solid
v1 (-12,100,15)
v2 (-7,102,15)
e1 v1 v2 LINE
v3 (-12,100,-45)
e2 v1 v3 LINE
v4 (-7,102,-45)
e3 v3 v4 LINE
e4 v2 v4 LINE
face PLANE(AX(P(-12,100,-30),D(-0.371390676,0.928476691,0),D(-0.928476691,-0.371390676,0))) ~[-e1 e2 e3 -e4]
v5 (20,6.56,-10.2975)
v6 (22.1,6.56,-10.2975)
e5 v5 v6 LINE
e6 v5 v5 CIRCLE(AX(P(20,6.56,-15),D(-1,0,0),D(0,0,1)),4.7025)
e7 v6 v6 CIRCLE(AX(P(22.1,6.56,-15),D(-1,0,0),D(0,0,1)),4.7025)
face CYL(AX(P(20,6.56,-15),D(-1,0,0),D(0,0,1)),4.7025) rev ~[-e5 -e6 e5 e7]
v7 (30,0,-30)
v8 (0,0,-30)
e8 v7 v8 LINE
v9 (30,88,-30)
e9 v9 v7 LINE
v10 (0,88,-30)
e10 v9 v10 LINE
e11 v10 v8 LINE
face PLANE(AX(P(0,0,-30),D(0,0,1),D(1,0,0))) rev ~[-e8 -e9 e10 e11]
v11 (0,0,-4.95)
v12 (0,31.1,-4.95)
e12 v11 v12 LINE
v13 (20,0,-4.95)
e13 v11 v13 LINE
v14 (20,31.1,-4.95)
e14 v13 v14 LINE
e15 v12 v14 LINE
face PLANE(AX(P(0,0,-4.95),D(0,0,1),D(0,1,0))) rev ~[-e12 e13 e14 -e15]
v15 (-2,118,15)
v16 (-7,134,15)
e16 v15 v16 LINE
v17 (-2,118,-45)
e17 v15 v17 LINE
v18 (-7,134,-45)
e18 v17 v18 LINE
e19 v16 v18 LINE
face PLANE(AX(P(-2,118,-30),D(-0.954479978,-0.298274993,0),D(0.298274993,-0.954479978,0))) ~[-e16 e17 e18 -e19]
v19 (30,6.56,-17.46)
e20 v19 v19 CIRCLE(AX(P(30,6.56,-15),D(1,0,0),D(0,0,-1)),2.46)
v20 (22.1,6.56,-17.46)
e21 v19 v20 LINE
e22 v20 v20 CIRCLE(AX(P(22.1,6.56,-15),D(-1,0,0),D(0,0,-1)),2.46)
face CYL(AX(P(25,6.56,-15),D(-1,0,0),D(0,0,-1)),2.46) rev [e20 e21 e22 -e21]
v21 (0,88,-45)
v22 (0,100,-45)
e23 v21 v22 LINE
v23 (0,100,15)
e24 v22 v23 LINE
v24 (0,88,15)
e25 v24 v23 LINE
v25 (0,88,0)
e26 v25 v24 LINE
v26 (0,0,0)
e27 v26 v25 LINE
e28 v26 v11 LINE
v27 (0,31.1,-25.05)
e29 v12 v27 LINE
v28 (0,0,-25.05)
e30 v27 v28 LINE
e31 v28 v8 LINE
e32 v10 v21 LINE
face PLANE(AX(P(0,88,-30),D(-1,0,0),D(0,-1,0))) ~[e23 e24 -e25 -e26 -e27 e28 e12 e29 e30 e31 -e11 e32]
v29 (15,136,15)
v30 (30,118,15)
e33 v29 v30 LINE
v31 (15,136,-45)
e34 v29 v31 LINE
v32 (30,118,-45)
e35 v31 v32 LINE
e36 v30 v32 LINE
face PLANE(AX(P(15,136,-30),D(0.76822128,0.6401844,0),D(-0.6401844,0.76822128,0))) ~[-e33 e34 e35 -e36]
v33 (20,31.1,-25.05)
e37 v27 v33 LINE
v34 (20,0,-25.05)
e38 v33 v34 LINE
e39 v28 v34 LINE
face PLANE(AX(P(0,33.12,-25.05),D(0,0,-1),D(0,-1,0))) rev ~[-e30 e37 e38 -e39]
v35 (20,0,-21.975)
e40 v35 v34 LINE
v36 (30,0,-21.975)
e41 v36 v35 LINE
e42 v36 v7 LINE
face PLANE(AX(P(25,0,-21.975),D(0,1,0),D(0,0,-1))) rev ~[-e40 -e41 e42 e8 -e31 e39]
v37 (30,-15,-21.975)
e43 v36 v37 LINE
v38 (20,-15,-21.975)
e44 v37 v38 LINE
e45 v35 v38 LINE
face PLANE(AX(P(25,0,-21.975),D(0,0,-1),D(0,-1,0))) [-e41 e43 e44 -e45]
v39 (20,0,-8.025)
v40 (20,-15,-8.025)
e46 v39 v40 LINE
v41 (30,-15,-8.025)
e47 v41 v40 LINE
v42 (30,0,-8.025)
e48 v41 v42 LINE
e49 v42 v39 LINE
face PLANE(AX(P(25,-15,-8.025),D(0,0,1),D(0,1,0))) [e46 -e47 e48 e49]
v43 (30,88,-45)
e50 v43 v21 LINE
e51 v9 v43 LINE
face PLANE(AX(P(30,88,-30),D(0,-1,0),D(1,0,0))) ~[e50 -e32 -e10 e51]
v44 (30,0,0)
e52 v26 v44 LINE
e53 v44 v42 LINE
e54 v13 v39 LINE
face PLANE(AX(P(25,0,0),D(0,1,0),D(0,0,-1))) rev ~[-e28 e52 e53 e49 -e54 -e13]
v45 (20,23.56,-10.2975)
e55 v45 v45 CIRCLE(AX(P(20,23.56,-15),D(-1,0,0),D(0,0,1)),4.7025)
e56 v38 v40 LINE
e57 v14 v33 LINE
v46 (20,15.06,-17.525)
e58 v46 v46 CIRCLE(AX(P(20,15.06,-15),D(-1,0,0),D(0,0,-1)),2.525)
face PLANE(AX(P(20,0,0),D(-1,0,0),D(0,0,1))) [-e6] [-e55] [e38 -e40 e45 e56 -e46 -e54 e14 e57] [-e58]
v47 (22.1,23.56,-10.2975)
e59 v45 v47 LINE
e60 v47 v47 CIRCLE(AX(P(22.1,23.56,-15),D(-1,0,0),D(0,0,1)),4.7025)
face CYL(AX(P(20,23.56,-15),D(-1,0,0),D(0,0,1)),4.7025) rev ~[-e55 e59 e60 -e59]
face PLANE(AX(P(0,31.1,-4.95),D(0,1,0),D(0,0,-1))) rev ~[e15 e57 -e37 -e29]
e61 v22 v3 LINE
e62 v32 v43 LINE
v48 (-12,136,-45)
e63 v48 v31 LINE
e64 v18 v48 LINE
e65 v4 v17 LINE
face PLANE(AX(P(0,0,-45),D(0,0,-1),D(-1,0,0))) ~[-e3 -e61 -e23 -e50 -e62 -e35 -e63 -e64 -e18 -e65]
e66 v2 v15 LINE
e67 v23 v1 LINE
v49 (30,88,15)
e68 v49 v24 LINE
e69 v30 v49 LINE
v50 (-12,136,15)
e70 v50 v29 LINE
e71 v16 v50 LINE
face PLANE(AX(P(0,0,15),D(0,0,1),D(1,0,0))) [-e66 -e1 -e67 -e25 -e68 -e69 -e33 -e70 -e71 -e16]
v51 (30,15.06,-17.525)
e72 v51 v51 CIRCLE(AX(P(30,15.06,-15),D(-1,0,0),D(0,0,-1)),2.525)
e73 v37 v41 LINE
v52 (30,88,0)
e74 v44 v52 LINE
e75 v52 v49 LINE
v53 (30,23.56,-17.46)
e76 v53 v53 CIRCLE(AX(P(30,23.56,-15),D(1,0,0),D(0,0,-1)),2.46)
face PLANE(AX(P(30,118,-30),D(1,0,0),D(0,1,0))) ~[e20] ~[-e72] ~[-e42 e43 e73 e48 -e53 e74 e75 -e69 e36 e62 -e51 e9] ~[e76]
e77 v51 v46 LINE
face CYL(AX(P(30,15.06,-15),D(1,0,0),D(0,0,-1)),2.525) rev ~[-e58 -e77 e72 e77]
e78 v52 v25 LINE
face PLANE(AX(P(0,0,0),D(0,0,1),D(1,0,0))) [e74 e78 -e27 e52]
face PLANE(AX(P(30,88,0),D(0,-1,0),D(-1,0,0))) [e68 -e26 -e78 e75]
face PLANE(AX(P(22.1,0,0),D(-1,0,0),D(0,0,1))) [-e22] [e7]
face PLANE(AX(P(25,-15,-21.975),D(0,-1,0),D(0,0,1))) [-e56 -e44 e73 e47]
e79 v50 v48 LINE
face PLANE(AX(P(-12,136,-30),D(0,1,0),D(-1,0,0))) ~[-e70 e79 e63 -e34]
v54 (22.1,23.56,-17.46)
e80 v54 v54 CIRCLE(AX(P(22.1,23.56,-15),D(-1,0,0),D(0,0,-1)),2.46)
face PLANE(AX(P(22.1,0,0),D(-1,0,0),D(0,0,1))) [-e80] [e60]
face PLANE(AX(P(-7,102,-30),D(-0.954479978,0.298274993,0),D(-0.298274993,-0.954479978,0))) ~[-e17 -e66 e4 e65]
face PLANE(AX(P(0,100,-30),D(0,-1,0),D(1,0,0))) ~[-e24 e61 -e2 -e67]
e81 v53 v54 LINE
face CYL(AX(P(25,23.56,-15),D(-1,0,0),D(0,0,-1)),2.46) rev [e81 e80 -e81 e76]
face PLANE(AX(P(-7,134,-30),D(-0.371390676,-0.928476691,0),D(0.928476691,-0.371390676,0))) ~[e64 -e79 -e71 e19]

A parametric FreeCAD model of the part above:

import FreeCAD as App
import Part
import Sketcher
from FreeCAD import Vector
Q = App.Units.Quantity


def add_polygon(sketch, points):
    """Adds a closed chain of lines whose ends are joined by coincident constraints."""
    first, n = sketch.GeometryCount, len(points)
    for a, b in zip(points, points[1:] + points[:1]):
        sketch.addGeometry(Part.LineSegment(App.Vector(*a, 0), App.Vector(*b, 0)), False)
    for i in range(n):
        sketch.addConstraint(Sketcher.Constraint("Coincident", first + i, 2, first + (i + 1) % n, 1))

doc = App.newDocument("Part")
params = doc.addObject("Spreadsheet::Sheet", "Params")
for row, (alias, value) in enumerate([
    ("sketch1_width", "25 mm"),
    ("sketch1_height", "40 mm"),
    ("pad1_length", "30 mm"),
    ("sketch2_diameter", "4.92 mm"),
    ("pocket1_length", "30 mm"),
    ("sketch3_height", "20.1 mm"),
    ("sketch3_width", "33.12 mm"),
    ("pocket2_length", "20 mm"),
    ("sketch4_height", "13.95 mm"),
    ("sketch4_width", "5 mm"),
    ("pad2_length", "15 mm"),
    ("sketch5_diameter", "4.92 mm"),
    ("pocket3_length", "2.1 mm"),
    ("sketch6_diameter", "4.92 mm"),
    ("pocket4_length", "10 mm"),
    ("sketch7_diameter", "4.92 mm"),
    ("pocket5_length", "2.1 mm"),
    ("sketch8_diameter", "4.92 mm"),
    ("sketch8_width", "40 mm"),
    ("sketch8_width2", "15 mm"),
    ("sketch8_height", "30 mm"),
    ("sketch8_height2", "13.95 mm"),
    ("pad3_length", "5 mm"),
    ("sketch9_width", "30 mm"),
    ("pad4_length", "30 mm"),
    ("sketch10_diameter", "5.05 mm"),
    ("pocket6_length", "30 mm"),
    ("sketch11_width", "12 mm"),
    ("sketch11_width2", "30 mm"),
    ("sketch11_width3", "27 mm"),
    ("sketch11_height", "48 mm"),
    ("pad5_length", "30 mm"),
    ("sketch12_width", "2.02 mm"),
    ("sketch12_height", "20.1 mm"),
    ("pad6_length", "20 mm"),
    ("sketch13_width", "30 mm"),
    ("sketch13_width2", "12 mm"),
    ("sketch13_width3", "27 mm"),
    ("pad7_length", "15 mm"),
], start=1):
    params.set(f"A{row}", alias)
    params.set(f"B{row}", "=" + value)
    params.setAlias(f"B{row}", alias)

body = doc.addObject("PartDesign::Body", "Body")

sketch1 = body.newObject("Sketcher::SketchObject", "Sketch")
sketch1.AttachmentSupport = (doc.getObject("XY_Plane"), [""])
sketch1.MapMode = "FlatFace"
add_polygon(sketch1, [(0, 40), (0, 0), (25, 0), (25, 40)])
sketch1.addConstraint([
    Sketcher.Constraint("Vertical", 0),
    Sketcher.Constraint("Horizontal", 1),
    Sketcher.Constraint("Vertical", 2),
    Sketcher.Constraint("Horizontal", 3),
    Sketcher.Constraint("Coincident", 0, 2, -1, 1),
    Sketcher.Constraint("DistanceX", 1, 1, 1, 2, Q("25 mm")),
    Sketcher.Constraint("DistanceY", 0, 2, 0, 1, Q("40 mm")),
])
sketch1.setExpression("Constraints[9]", "Params.sketch1_width")
sketch1.setExpression("Constraints[10]", "Params.sketch1_height")
pad1 = body.newObject("PartDesign::Pad", "Pad")
pad1.Profile = sketch1
pad1.setExpression("Length", "Params.pad1_length")
pad1.Reversed = True

sketch2 = body.newObject("Sketcher::SketchObject", "Sketch001")
sketch2.AttachmentSupport = (doc.getObject("YZ_Plane"), [""])
sketch2.MapMode = "FlatFace"
sketch2.AttachmentOffset = App.Placement(Vector(0, 0, 25), App.Rotation())
sketch2.addGeometry(Part.Circle(Vector(6.56, -15, 0), Vector(0, 0, 1), 2.46), False)
sketch2.addConstraint([
    Sketcher.Constraint("Diameter", 0, Q("4.92 mm")),
    Sketcher.Constraint("DistanceY", 0, 3, -1, 1, Q("15 mm")),
    Sketcher.Constraint("DistanceX", -1, 1, 0, 3, Q("6.56 mm")),
])
sketch2.setExpression("Constraints[0]", "Params.sketch2_diameter")
pocket1 = body.newObject("PartDesign::Pocket", "Pocket")
pocket1.Profile = sketch2
pocket1.setExpression("Length", "Params.pocket1_length")

sketch3 = body.newObject("Sketcher::SketchObject", "Sketch002")
sketch3.AttachmentSupport = (doc.getObject("YZ_Plane"), [""])
sketch3.MapMode = "FlatFace"
add_polygon(sketch3, [(0, -25.05), (0, -4.95), (33.12, -4.95), (33.12, -25.05)])
sketch3.addConstraint([
    Sketcher.Constraint("Vertical", 0),
    Sketcher.Constraint("Horizontal", 1),
    Sketcher.Constraint("Vertical", 2),
    Sketcher.Constraint("Horizontal", 3),
    Sketcher.Constraint("PointOnObject", 0, 2, -2),
    Sketcher.Constraint("DistanceY", 0, 1, 0, 2, Q("20.1 mm")),
    Sketcher.Constraint("DistanceX", 1, 1, 1, 2, Q("33.12 mm")),
    Sketcher.Constraint("DistanceY", 0, 2, -1, 1, Q("4.95 mm")),
])
sketch3.setExpression("Constraints[9]", "Params.sketch3_height")
sketch3.setExpression("Constraints[10]", "Params.sketch3_width")
pocket2 = body.newObject("PartDesign::Pocket", "Pocket001")
pocket2.Profile = sketch3
pocket2.setExpression("Length", "Params.pocket2_length")
pocket2.Reversed = True

sketch4 = body.newObject("Sketcher::SketchObject", "Sketch003")
sketch4.AttachmentSupport = (doc.getObject("XZ_Plane"), [""])
sketch4.MapMode = "FlatFace"
add_polygon(sketch4, [(25, -8.025), (20, -8.025), (20, -21.975), (25, -21.975)])
sketch4.addConstraint([
    Sketcher.Constraint("Horizontal", 0),
    Sketcher.Constraint("Vertical", 1),
    Sketcher.Constraint("Horizontal", 2),
    Sketcher.Constraint("Vertical", 3),
    Sketcher.Constraint("DistanceY", 1, 2, 1, 1, Q("13.95 mm")),
    Sketcher.Constraint("DistanceX", 0, 2, 0, 1, Q("5 mm")),
    Sketcher.Constraint("DistanceX", -1, 1, 0, 2, Q("20 mm")),
    Sketcher.Constraint("DistanceY", 0, 2, -1, 1, Q("8.025 mm")),
])
sketch4.setExpression("Constraints[8]", "Params.sketch4_height")
sketch4.setExpression("Constraints[9]", "Params.sketch4_width")
pad2 = body.newObject("PartDesign::Pad", "Pad001")
pad2.Profile = sketch4
pad2.setExpression("Length", "Params.pad2_length")

sketch5 = body.newObject("Sketcher::SketchObject", "Sketch004")
sketch5.AttachmentSupport = (doc.getObject("YZ_Plane"), [""])
sketch5.MapMode = "FlatFace"
sketch5.AttachmentOffset = App.Placement(Vector(0, 0, 20), App.Rotation())
sketch5.addGeometry([
    Part.Circle(Vector(6.56, -15, 0), Vector(0, 0, 1), 4.7025),
    Part.Circle(Vector(6.56, -15, 0), Vector(0, 0, 1), 2.46),
], False)
sketch5.addConstraint([
    Sketcher.Constraint("Coincident", 1, 3, 0, 3),
    Sketcher.Constraint("Diameter", 0, Q("9.405 mm")),
    Sketcher.Constraint("Diameter", 1, Q("4.92 mm")),
    Sketcher.Constraint("DistanceY", 0, 3, -1, 1, Q("15 mm")),
    Sketcher.Constraint("DistanceX", -1, 1, 0, 3, Q("6.56 mm")),
])
sketch5.setExpression("Constraints[2]", "Params.sketch5_diameter")
pocket3 = body.newObject("PartDesign::Pocket", "Pocket002")
pocket3.Profile = sketch5
pocket3.setExpression("Length", "Params.pocket3_length")
pocket3.Reversed = True

sketch6 = body.newObject("Sketcher::SketchObject", "Sketch005")
sketch6.AttachmentSupport = (doc.getObject("YZ_Plane"), [""])
sketch6.MapMode = "FlatFace"
sketch6.AttachmentOffset = App.Placement(Vector(0, 0, 25), App.Rotation())
sketch6.addGeometry(Part.Circle(Vector(23.56, -15, 0), Vector(0, 0, 1), 2.46), False)
sketch6.addConstraint([
    Sketcher.Constraint("Diameter", 0, Q("4.92 mm")),
    Sketcher.Constraint("DistanceY", 0, 3, -1, 1, Q("15 mm")),
    Sketcher.Constraint("DistanceX", -1, 1, 0, 3, Q("23.56 mm")),
])
sketch6.setExpression("Constraints[0]", "Params.sketch6_diameter")
pocket4 = body.newObject("PartDesign::Pocket", "Pocket003")
pocket4.Profile = sketch6
pocket4.setExpression("Length", "Params.pocket4_length")

sketch7 = body.newObject("Sketcher::SketchObject", "Sketch006")
sketch7.AttachmentSupport = (doc.getObject("YZ_Plane"), [""])
sketch7.MapMode = "FlatFace"
sketch7.AttachmentOffset = App.Placement(Vector(0, 0, 20), App.Rotation())
sketch7.addGeometry([
    Part.Circle(Vector(23.56, -15, 0), Vector(0, 0, 1), 4.7025),
    Part.Circle(Vector(23.56, -15, 0), Vector(0, 0, 1), 2.46),
], False)
sketch7.addConstraint([
    Sketcher.Constraint("Coincident", 1, 3, 0, 3),
    Sketcher.Constraint("Diameter", 0, Q("9.405 mm")),
    Sketcher.Constraint("Diameter", 1, Q("4.92 mm")),
    Sketcher.Constraint("DistanceY", 0, 3, -1, 1, Q("15 mm")),
    Sketcher.Constraint("DistanceX", -1, 1, 0, 3, Q("23.56 mm")),
])
sketch7.setExpression("Constraints[2]", "Params.sketch7_diameter")
pocket5 = body.newObject("PartDesign::Pocket", "Pocket004")
pocket5.Profile = sketch7
pocket5.setExpression("Length", "Params.pocket5_length")
pocket5.Reversed = True

sketch8 = body.newObject("Sketcher::SketchObject", "Sketch007")
sketch8.AttachmentSupport = (doc.getObject("YZ_Plane"), [""])
sketch8.MapMode = "FlatFace"
sketch8.AttachmentOffset = App.Placement(Vector(0, 0, 25), App.Rotation())
add_polygon(sketch8, [(0, -30), (40, -30), (40, 0), (0, 0), (0, -8.025), (-15, -8.025), (-15, -21.975), (0, -21.975)])
sketch8.addGeometry(Part.Circle(Vector(6.56, -15, 0), Vector(0, 0, 1), 2.46), False)
sketch8.addGeometry(Part.Circle(Vector(23.56, -15, 0), Vector(0, 0, 1), 2.46), False)
sketch8.addConstraint([
    Sketcher.Constraint("Horizontal", 0),
    Sketcher.Constraint("Vertical", 1),
    Sketcher.Constraint("Horizontal", 2),
    Sketcher.Constraint("Vertical", 3),
    Sketcher.Constraint("Horizontal", 4),
    Sketcher.Constraint("Vertical", 5),
    Sketcher.Constraint("Horizontal", 6),
    Sketcher.Constraint("Vertical", 7),
    Sketcher.Constraint("Coincident", 2, 2, -1, 1),
    Sketcher.Constraint("Equal", 8, 9),
    Sketcher.Constraint("PointOnObject", 6, 2, -2),
    Sketcher.Constraint("Horizontal", 8, 3, 9, 3),
    Sketcher.Constraint("Equal", 3, 7),
    Sketcher.Constraint("Diameter", 8, Q("4.92 mm")),
    Sketcher.Constraint("DistanceX", 0, 1, 0, 2, Q("40 mm")),
    Sketcher.Constraint("DistanceX", 4, 2, 4, 1, Q("15 mm")),
    Sketcher.Constraint("DistanceY", 1, 1, 1, 2, Q("30 mm")),
    Sketcher.Constraint("DistanceY", 8, 3, -1, 1, Q("15 mm")),
    Sketcher.Constraint("DistanceX", 8, 3, 9, 3, Q("17 mm")),
    Sketcher.Constraint("DistanceY", 5, 2, 5, 1, Q("13.95 mm")),
    Sketcher.Constraint("DistanceX", -1, 1, 8, 3, Q("6.56 mm")),
])
sketch8.setExpression("Constraints[21]", "Params.sketch8_diameter")
sketch8.setExpression("Constraints[22]", "Params.sketch8_width")
sketch8.setExpression("Constraints[23]", "Params.sketch8_width2")
sketch8.setExpression("Constraints[24]", "Params.sketch8_height")
sketch8.setExpression("Constraints[27]", "Params.sketch8_height2")
pad3 = body.newObject("PartDesign::Pad", "Pad002")
pad3.Profile = sketch8
pad3.setExpression("Length", "Params.pad3_length")

sketch9 = body.newObject("Sketcher::SketchObject", "Sketch008")
sketch9.AttachmentSupport = (doc.getObject("XZ_Plane"), [""])
sketch9.MapMode = "FlatFace"
sketch9.AttachmentOffset = App.Placement(Vector(0, 0, -40), App.Rotation())
add_polygon(sketch9, [(30, -30), (0, -30), (0, 0), (30, 0)])
sketch9.addConstraint([
    Sketcher.Constraint("Horizontal", 0),
    Sketcher.Constraint("Vertical", 1),
    Sketcher.Constraint("Horizontal", 2),
    Sketcher.Constraint("Vertical", 3),
    Sketcher.Constraint("Coincident", 1, 2, -1, 1),
    Sketcher.Constraint("Equal", 2, 1),
    Sketcher.Constraint("DistanceX", 0, 2, 0, 1, Q("30 mm")),
])
sketch9.setExpression("Constraints[10]", "Params.sketch9_width")
pad4 = body.newObject("PartDesign::Pad", "Pad003")
pad4.Profile = sketch9
pad4.setExpression("Length", "Params.pad4_length")
pad4.Reversed = True

sketch10 = body.newObject("Sketcher::SketchObject", "Sketch009")
sketch10.AttachmentSupport = (doc.getObject("YZ_Plane"), [""])
sketch10.MapMode = "FlatFace"
sketch10.AttachmentOffset = App.Placement(Vector(0, 0, 30), App.Rotation())
sketch10.addGeometry(Part.Circle(Vector(15.06, -15, 0), Vector(0, 0, 1), 2.525), False)
sketch10.addConstraint([
    Sketcher.Constraint("Diameter", 0, Q("5.05 mm")),
    Sketcher.Constraint("DistanceY", 0, 3, -1, 1, Q("15 mm")),
    Sketcher.Constraint("DistanceX", -1, 1, 0, 3, Q("15.06 mm")),
])
sketch10.setExpression("Constraints[0]", "Params.sketch10_diameter")
pocket6 = body.newObject("PartDesign::Pocket", "Pocket005")
pocket6.Profile = sketch10
pocket6.setExpression("Length", "Params.pocket6_length")

sketch11 = body.newObject("Sketcher::SketchObject", "Sketch010")
sketch11.AttachmentSupport = (doc.getObject("XY_Plane"), [""])
sketch11.MapMode = "FlatFace"
add_polygon(sketch11, [(0, 70), (30, 70), (30, 118), (15, 136), (-12, 136), (-7, 134), (-2, 118), (-7, 102), (-12, 100), (0, 100)])
sketch11.addConstraint([
    Sketcher.Constraint("Horizontal", 0),
    Sketcher.Constraint("Vertical", 1),
    Sketcher.Constraint("Horizontal", 3),
    Sketcher.Constraint("Horizontal", 8),
    Sketcher.Constraint("Vertical", 9),
    Sketcher.Constraint("PointOnObject", 8, 2, -2),
    Sketcher.Constraint("Horizontal", 1, 2, 5, 2),
    Sketcher.Constraint("Vertical", 4, 2, 6, 2),
    Sketcher.Constraint("Vertical", 3, 2, 7, 2),
    Sketcher.Constraint("Equal", 0, 9),
    Sketcher.Constraint("Equal", 5, 6),
    Sketcher.Constraint("Equal", 4, 7),
    Sketcher.Constraint("DistanceX", 8, 1, 8, 2, Q("12 mm")),
    Sketcher.Constraint("DistanceX", 0, 1, 0, 2, Q("30 mm")),
    Sketcher.Constraint("DistanceX", 3, 2, 3, 1, Q("27 mm")),
    Sketcher.Constraint("DistanceY", 1, 1, 1, 2, Q("48 mm")),
    Sketcher.Constraint("DistanceY", -1, 1, 0, 2, Q("70 mm")),
    Sketcher.Constraint("DistanceX", 4, 2, -1, 1, Q("7 mm")),
    Sketcher.Constraint("DistanceY", -1, 1, 4, 2, Q("134 mm")),
    Sketcher.Constraint("DistanceX", 5, 2, -1, 1, Q("2 mm")),
])
sketch11.setExpression("Constraints[22]", "Params.sketch11_width")
sketch11.setExpression("Constraints[23]", "Params.sketch11_width2")
sketch11.setExpression("Constraints[24]", "Params.sketch11_width3")
sketch11.setExpression("Constraints[25]", "Params.sketch11_height")
pad5 = body.newObject("PartDesign::Pad", "Pad004")
pad5.Profile = sketch11
pad5.setExpression("Length", "Params.pad5_length")
pad5.Reversed = True

sketch12 = body.newObject("Sketcher::SketchObject", "Sketch011")
sketch12.AttachmentSupport = (doc.getObject("YZ_Plane"), [""])
sketch12.MapMode = "FlatFace"
add_polygon(sketch12, [(33.12, -4.95), (33.12, -25.05), (31.1, -25.05), (31.1, -4.95)])
sketch12.addConstraint([
    Sketcher.Constraint("Vertical", 0),
    Sketcher.Constraint("Horizontal", 1),
    Sketcher.Constraint("Vertical", 2),
    Sketcher.Constraint("Horizontal", 3),
    Sketcher.Constraint("DistanceX", 1, 2, 1, 1, Q("2.02 mm")),
    Sketcher.Constraint("DistanceY", 0, 2, 0, 1, Q("20.1 mm")),
    Sketcher.Constraint("DistanceX", -1, 1, 1, 2, Q("31.1 mm")),
    Sketcher.Constraint("DistanceY", 0, 2, -1, 1, Q("25.05 mm")),
])
sketch12.setExpression("Constraints[8]", "Params.sketch12_width")
sketch12.setExpression("Constraints[9]", "Params.sketch12_height")
pad6 = body.newObject("PartDesign::Pad", "Pad005")
pad6.Profile = sketch12
pad6.setExpression("Length", "Params.pad6_length")

sketch13 = body.newObject("Sketcher::SketchObject", "Sketch012")
sketch13.AttachmentSupport = (doc.getObject("XY_Plane"), [""])
sketch13.MapMode = "FlatFace"
add_polygon(sketch13, [(-12, 100), (0, 100), (0, 88), (30, 88), (30, 118), (15, 136), (-12, 136), (-7, 134), (-2, 118), (-7, 102)])
sketch13.addConstraint([
    Sketcher.Constraint("Horizontal", 0),
    Sketcher.Constraint("Vertical", 1),
    Sketcher.Constraint("Horizontal", 2),
    Sketcher.Constraint("Vertical", 3),
    Sketcher.Constraint("Horizontal", 5),
    Sketcher.Constraint("PointOnObject", 0, 2, -2),
    Sketcher.Constraint("Horizontal", 3, 2, 7, 2),
    Sketcher.Constraint("Vertical", 6, 2, 8, 2),
    Sketcher.Constraint("Vertical", 5, 2, 9, 2),
    Sketcher.Constraint("Equal", 0, 1),
    Sketcher.Constraint("Equal", 2, 3),
    Sketcher.Constraint("Equal", 7, 8),
    Sketcher.Constraint("Equal", 6, 9),
    Sketcher.Constraint("DistanceX", 2, 1, 2, 2, Q("30 mm")),
    Sketcher.Constraint("DistanceX", 0, 1, 0, 2, Q("12 mm")),
    Sketcher.Constraint("DistanceX", 5, 2, 5, 1, Q("27 mm")),
    Sketcher.Constraint("DistanceY", -1, 1, 0, 2, Q("100 mm")),
    Sketcher.Constraint("DistanceX", 6, 2, -1, 1, Q("7 mm")),
    Sketcher.Constraint("DistanceY", -1, 1, 6, 2, Q("134 mm")),
    Sketcher.Constraint("DistanceX", 7, 2, -1, 1, Q("2 mm")),
])
sketch13.setExpression("Constraints[23]", "Params.sketch13_width")
sketch13.setExpression("Constraints[24]", "Params.sketch13_width2")
sketch13.setExpression("Constraints[25]", "Params.sketch13_width3")
pad7 = body.newObject("PartDesign::Pad", "Pad006")
pad7.Profile = sketch13
pad7.setExpression("Length", "Params.pad7_length")
doc.recompute()

datumplane = body.newObject("PartDesign::Plane", "DatumPlane")
datumplane.AttachmentSupport = (doc.getObject("XY_Plane"), [""])
datumplane.MapMode = "FlatFace"
datumplane.AttachmentOffset = App.Placement(Vector(0, 0, -15), App.Rotation())
mirrored = body.newObject("PartDesign::Mirrored", "Mirrored")
mirrored.Originals = [pad7]
mirrored.MirrorPlane = (datumplane, [""])
body.Tip = mirrored

doc.recompute()
